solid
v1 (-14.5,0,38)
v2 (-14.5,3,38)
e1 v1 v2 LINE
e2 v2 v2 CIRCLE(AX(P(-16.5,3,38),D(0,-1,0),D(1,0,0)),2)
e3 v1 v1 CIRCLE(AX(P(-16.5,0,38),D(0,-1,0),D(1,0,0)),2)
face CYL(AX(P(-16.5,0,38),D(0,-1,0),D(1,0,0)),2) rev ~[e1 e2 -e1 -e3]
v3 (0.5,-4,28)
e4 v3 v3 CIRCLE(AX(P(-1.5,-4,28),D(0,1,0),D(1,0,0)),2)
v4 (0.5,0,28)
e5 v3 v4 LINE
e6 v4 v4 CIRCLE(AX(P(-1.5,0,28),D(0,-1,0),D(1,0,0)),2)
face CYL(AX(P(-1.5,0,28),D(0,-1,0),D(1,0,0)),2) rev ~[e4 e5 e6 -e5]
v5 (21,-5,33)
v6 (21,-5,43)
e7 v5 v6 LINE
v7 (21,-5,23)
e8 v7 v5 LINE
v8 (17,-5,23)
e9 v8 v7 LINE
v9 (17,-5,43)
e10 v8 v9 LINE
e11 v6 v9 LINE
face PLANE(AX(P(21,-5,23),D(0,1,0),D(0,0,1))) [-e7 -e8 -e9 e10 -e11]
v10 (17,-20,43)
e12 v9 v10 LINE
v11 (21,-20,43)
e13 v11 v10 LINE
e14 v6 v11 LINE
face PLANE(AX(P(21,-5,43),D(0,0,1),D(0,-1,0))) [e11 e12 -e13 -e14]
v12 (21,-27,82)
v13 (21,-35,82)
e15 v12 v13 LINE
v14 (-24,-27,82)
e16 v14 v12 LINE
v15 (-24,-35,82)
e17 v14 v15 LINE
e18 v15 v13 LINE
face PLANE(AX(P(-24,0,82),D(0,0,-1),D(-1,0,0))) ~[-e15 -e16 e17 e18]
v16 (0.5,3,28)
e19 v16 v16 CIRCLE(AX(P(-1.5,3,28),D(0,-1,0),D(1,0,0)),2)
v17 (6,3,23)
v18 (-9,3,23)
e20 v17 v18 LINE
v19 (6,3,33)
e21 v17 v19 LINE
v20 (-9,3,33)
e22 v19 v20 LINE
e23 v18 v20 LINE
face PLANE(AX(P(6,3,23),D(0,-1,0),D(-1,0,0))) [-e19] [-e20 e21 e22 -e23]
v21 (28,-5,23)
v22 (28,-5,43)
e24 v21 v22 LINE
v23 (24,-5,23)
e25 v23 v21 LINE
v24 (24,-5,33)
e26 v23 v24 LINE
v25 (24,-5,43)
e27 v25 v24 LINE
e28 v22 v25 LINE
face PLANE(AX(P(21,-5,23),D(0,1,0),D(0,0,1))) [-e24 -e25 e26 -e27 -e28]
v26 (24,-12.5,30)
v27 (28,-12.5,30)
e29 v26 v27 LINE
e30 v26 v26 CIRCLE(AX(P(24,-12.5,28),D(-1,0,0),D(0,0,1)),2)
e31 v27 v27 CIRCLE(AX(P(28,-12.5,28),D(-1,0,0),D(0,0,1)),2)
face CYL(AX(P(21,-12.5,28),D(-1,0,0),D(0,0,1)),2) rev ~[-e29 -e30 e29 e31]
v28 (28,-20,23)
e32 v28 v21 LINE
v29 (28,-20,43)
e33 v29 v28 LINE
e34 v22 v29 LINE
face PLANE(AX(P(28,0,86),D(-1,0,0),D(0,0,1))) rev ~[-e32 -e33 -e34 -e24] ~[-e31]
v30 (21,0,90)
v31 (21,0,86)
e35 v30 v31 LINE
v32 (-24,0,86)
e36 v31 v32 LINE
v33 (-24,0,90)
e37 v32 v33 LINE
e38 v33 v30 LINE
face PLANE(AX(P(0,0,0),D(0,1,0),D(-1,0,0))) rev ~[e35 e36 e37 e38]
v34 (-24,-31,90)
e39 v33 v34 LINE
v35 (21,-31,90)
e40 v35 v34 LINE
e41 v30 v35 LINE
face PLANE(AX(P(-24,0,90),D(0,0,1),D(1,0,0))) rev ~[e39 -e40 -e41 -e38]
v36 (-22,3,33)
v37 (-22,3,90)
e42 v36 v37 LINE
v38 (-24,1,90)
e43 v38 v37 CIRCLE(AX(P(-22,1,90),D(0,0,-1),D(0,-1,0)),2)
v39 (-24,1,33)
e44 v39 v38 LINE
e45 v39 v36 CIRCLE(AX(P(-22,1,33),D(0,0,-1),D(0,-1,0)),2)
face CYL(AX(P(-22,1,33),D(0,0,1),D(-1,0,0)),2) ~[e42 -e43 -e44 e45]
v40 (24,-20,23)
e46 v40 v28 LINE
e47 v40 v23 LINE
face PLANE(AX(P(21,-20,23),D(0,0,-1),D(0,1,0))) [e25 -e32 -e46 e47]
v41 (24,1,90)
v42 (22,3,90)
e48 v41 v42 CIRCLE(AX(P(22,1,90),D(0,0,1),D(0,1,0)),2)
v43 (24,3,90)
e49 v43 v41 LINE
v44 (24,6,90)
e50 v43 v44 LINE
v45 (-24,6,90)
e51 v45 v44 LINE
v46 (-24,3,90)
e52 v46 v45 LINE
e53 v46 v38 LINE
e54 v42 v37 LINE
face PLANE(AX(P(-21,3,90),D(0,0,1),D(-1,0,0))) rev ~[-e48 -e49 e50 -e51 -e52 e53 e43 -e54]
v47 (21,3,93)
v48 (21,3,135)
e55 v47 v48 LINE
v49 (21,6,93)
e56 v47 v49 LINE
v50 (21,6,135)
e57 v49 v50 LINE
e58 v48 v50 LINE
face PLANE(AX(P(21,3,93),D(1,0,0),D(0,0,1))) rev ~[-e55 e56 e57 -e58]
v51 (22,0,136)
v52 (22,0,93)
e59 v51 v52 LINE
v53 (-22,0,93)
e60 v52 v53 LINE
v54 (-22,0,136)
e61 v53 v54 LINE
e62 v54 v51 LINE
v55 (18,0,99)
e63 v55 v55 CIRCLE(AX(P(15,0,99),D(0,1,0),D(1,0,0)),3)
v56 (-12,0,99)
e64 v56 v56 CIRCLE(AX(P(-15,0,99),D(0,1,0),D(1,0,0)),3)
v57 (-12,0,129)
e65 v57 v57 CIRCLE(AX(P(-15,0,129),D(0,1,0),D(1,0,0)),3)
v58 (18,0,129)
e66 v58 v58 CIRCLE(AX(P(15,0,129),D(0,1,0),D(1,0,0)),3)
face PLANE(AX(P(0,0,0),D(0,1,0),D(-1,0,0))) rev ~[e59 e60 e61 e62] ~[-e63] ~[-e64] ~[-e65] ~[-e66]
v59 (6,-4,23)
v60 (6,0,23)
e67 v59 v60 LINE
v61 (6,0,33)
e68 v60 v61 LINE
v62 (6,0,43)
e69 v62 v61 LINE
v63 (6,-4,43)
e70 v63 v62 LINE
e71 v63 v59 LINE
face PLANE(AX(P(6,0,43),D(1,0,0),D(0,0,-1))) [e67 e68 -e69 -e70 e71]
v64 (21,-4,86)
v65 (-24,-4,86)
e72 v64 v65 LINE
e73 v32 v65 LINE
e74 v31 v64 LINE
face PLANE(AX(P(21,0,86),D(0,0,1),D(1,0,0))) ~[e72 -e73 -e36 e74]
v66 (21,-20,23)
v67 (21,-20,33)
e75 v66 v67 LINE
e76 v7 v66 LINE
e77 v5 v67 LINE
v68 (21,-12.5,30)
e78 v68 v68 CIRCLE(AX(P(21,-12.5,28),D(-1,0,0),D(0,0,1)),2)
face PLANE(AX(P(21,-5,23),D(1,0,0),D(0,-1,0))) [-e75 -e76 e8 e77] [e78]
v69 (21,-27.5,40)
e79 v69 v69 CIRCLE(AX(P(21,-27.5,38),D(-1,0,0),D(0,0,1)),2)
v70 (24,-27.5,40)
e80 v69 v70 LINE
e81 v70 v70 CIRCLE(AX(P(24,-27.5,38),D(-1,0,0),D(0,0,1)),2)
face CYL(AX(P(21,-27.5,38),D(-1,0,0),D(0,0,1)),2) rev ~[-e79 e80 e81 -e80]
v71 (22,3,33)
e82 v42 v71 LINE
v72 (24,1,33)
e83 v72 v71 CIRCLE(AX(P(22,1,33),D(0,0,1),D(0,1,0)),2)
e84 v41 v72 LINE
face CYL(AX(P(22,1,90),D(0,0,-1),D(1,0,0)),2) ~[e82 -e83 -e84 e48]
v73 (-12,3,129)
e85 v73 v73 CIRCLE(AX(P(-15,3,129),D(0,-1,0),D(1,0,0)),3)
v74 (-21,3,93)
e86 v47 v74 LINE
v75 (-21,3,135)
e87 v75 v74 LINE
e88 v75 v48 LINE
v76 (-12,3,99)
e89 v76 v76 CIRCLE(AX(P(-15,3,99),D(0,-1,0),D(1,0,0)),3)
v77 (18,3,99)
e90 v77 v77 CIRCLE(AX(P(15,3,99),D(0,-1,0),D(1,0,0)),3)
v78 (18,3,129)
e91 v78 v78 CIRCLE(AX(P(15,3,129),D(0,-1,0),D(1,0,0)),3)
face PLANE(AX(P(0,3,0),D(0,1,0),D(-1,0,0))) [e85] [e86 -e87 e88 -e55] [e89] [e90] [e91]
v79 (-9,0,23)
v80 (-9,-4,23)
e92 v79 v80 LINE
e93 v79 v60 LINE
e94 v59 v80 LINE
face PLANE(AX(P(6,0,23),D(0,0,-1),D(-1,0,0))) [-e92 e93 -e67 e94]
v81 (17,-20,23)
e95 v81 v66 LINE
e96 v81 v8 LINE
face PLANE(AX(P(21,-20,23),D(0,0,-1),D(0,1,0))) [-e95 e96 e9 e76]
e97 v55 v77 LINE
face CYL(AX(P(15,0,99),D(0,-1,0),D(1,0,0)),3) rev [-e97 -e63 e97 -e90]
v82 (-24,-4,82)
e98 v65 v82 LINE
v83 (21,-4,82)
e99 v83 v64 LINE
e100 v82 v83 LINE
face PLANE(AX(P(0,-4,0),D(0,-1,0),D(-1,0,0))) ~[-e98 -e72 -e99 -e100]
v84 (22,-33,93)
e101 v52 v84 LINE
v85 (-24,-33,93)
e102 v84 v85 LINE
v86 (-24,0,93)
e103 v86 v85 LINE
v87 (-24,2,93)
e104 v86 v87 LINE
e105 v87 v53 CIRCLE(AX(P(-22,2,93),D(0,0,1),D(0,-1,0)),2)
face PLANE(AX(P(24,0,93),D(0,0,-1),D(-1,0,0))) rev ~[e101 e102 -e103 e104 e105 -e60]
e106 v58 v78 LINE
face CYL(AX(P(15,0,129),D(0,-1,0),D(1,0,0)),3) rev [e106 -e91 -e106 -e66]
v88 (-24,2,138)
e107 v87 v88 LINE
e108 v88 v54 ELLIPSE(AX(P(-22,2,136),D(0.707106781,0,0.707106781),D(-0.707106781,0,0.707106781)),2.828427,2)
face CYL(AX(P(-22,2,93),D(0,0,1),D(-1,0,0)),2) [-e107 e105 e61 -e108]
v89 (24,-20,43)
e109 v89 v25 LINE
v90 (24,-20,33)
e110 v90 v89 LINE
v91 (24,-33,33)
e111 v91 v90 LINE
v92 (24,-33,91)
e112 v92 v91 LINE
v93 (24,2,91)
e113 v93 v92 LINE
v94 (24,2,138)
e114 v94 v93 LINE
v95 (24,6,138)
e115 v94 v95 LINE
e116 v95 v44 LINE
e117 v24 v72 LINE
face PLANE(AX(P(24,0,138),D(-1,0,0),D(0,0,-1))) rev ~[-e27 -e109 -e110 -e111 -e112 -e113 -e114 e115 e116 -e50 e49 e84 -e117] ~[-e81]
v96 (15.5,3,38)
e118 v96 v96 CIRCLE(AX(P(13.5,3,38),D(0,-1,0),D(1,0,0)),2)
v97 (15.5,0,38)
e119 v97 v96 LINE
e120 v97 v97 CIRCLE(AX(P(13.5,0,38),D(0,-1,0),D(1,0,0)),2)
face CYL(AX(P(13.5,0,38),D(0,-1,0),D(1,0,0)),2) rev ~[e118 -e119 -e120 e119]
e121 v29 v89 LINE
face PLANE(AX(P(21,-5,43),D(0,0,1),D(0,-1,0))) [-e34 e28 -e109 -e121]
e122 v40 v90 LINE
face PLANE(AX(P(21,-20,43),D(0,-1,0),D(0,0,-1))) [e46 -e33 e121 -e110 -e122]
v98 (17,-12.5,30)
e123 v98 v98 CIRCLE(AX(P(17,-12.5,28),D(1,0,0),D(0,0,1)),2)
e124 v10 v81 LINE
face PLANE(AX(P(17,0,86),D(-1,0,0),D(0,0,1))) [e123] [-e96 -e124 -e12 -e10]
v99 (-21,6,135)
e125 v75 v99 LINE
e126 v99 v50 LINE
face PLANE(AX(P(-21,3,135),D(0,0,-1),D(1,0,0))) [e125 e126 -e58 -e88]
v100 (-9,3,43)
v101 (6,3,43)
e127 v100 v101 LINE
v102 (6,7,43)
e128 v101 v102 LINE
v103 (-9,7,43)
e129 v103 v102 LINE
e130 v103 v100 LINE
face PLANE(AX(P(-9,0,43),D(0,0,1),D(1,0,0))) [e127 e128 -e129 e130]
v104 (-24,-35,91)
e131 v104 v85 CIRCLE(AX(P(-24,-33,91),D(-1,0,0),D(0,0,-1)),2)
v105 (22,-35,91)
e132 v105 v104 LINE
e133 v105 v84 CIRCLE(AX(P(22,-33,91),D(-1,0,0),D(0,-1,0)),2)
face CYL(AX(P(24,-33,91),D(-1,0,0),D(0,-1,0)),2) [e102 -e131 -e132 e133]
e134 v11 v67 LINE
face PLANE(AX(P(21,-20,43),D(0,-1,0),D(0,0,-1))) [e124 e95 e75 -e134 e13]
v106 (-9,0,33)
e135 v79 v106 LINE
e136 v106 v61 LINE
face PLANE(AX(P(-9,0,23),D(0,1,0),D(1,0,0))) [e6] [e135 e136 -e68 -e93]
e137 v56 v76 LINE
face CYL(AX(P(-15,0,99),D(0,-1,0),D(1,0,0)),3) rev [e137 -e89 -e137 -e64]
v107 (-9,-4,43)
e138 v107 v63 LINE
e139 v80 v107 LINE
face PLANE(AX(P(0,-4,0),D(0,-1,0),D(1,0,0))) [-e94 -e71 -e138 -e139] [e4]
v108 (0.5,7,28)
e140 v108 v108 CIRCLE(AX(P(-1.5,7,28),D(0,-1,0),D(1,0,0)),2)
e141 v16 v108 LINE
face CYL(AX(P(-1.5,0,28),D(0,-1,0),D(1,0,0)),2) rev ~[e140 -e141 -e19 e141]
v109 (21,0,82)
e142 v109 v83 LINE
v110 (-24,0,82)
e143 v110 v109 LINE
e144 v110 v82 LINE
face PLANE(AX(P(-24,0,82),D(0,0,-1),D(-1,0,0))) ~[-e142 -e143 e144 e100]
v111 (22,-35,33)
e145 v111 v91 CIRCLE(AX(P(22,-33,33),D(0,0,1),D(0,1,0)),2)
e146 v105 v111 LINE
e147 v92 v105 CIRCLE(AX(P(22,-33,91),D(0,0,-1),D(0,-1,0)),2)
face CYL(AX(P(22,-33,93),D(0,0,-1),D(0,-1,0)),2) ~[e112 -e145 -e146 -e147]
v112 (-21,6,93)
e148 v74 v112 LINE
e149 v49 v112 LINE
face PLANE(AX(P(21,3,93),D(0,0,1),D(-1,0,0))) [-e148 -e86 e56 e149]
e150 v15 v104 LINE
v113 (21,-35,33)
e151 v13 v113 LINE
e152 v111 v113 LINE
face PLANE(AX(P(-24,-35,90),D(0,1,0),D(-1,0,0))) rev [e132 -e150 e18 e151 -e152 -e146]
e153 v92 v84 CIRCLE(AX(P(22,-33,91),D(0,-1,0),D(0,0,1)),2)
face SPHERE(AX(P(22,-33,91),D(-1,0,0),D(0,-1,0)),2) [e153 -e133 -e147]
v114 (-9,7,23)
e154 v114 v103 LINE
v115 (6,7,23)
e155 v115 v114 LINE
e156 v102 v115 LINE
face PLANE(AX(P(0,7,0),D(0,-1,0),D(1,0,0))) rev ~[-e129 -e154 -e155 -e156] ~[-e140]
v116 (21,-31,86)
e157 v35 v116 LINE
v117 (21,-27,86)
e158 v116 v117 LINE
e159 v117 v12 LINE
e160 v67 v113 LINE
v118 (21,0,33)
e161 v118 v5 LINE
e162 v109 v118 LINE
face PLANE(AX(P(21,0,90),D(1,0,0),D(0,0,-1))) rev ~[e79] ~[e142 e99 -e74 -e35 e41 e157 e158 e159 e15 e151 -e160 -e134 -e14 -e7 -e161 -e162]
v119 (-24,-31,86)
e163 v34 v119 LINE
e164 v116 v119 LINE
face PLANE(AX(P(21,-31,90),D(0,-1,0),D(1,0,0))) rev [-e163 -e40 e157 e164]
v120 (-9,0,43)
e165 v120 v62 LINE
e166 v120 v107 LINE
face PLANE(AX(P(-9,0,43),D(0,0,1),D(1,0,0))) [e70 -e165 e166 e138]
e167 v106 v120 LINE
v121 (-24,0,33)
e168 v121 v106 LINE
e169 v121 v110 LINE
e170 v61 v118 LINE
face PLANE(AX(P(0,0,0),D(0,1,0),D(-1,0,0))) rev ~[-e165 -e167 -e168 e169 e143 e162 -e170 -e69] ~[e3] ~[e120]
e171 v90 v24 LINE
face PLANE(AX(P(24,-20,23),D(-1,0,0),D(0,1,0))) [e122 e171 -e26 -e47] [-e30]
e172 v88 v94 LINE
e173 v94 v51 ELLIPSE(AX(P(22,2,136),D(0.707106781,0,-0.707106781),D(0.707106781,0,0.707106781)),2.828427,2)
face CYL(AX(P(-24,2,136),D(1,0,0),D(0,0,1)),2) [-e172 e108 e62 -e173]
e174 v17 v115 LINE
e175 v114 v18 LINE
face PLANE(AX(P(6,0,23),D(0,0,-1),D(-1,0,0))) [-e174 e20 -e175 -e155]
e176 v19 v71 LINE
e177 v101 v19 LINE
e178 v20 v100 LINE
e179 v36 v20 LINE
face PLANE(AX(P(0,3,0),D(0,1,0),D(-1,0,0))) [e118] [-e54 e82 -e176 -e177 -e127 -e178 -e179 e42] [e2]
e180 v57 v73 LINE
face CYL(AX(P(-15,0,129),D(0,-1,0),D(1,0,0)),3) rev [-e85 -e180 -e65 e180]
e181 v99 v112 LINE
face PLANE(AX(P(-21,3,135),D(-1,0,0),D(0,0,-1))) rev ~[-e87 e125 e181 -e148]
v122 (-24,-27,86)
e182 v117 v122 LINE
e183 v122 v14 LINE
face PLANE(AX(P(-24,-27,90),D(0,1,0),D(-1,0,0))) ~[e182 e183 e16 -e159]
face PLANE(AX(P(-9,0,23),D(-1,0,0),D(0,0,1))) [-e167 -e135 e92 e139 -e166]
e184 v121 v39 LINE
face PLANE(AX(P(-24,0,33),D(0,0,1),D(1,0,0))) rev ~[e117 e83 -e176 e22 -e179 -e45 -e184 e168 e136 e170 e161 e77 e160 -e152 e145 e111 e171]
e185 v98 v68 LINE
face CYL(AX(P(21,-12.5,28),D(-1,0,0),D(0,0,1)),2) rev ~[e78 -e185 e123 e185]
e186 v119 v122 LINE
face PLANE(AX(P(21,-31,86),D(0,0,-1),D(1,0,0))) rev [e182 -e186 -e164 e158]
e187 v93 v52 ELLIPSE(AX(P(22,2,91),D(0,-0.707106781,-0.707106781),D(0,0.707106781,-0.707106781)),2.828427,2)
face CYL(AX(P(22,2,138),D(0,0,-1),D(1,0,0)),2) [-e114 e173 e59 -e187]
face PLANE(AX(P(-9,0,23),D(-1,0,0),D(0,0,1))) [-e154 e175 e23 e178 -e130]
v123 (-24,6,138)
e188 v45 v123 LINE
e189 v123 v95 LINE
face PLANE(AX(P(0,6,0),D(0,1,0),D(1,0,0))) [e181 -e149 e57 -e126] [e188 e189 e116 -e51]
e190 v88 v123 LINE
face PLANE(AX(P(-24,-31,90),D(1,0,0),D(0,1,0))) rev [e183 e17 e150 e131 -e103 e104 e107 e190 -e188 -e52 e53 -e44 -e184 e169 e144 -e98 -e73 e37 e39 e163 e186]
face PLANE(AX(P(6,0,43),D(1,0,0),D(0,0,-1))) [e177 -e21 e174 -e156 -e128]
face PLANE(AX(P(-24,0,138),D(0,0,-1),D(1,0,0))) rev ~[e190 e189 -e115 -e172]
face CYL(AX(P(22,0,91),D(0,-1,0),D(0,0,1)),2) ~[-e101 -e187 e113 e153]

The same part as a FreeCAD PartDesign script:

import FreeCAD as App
import Part
import Sketcher

V = App.Vector


def edges_at(feature, points):
    """Names of the edges that pass closest to the given points."""
    edges = feature.Shape.Edges
    near = lambda p: min(range(len(edges)), key=lambda i: edges[i].distToShape(Part.Vertex(*p))[0])
    return sorted({f"Edge{near(p) + 1}" for p in points})

doc = App.newDocument("Part")
body = doc.addObject("PartDesign::Body", "Body")

# Sketch on XZ plane
sketch1 = body.newObject("Sketcher::SketchObject", "Sketch")
sketch1.AttachmentSupport = (doc.getObject("XZ_Plane"), [""])
sketch1.MapMode = "FlatFace"
sketch1.addGeometry(Part.LineSegment(V(-24, -138, 0), V(-24, 138, 0)), False)
sketch1.addGeometry(Part.LineSegment(V(-24, 138, 0), V(24, 138, 0)), False)
sketch1.addGeometry(Part.LineSegment(V(24, 138, 0), V(24, -138, 0)), False)
sketch1.addGeometry(Part.LineSegment(V(24, -138, 0), V(-24, -138, 0)), False)
sketch1.addConstraint(Sketcher.Constraint("Coincident", 0, 2, 1, 1))
sketch1.addConstraint(Sketcher.Constraint("Coincident", 1, 2, 2, 1))
sketch1.addConstraint(Sketcher.Constraint("Coincident", 2, 2, 3, 1))
sketch1.addConstraint(Sketcher.Constraint("Coincident", 3, 2, 0, 1))
sketch1.addConstraint(Sketcher.Constraint("Vertical", 0))
sketch1.addConstraint(Sketcher.Constraint("Horizontal", 1))
sketch1.addConstraint(Sketcher.Constraint("Vertical", 2))
sketch1.addConstraint(Sketcher.Constraint("Horizontal", 3))
sketch1.addConstraint(Sketcher.Constraint("Symmetric", 0, 2, 2, 2, -1, 1))
sketch1.addConstraint(Sketcher.Constraint("DistanceX", 1, 1, 1, 2, 48.0))
sketch1.addConstraint(Sketcher.Constraint("DistanceY", 0, 1, 0, 2, 276.0))
pad1 = body.newObject("PartDesign::Pad", "Pad")
pad1.Profile = sketch1
pad1.Length = 3
pad1.Reversed = True

# Sketch on XZ plane
sketch2 = body.newObject("Sketcher::SketchObject", "Sketch001")
sketch2.AttachmentSupport = (doc.getObject("XZ_Plane"), [""])
sketch2.MapMode = "FlatFace"
sketch2.AttachmentOffset = App.Placement(V(0, 0, -3), App.Rotation())
sketch2.addGeometry(Part.LineSegment(V(-24, 90, 0), V(-24, 138, 0)), False)
sketch2.addGeometry(Part.LineSegment(V(-24, 138, 0), V(24, 138, 0)), False)
sketch2.addGeometry(Part.LineSegment(V(24, 138, 0), V(24, 90, 0)), False)
sketch2.addGeometry(Part.LineSegment(V(24, 90, 0), V(-24, 90, 0)), False)
sketch2.addGeometry(Part.LineSegment(V(-21, 135, 0), V(-21, 93, 0)), False)
sketch2.addGeometry(Part.LineSegment(V(-21, 93, 0), V(21, 93, 0)), False)
sketch2.addGeometry(Part.LineSegment(V(21, 93, 0), V(21, 135, 0)), False)
sketch2.addGeometry(Part.LineSegment(V(21, 135, 0), V(-21, 135, 0)), False)
sketch2.addConstraint(Sketcher.Constraint("Coincident", 0, 2, 1, 1))
sketch2.addConstraint(Sketcher.Constraint("Coincident", 1, 2, 2, 1))
sketch2.addConstraint(Sketcher.Constraint("Coincident", 2, 2, 3, 1))
sketch2.addConstraint(Sketcher.Constraint("Coincident", 3, 2, 0, 1))
sketch2.addConstraint(Sketcher.Constraint("Coincident", 4, 2, 5, 1))
sketch2.addConstraint(Sketcher.Constraint("Coincident", 5, 2, 6, 1))
sketch2.addConstraint(Sketcher.Constraint("Coincident", 6, 2, 7, 1))
sketch2.addConstraint(Sketcher.Constraint("Coincident", 7, 2, 4, 1))
sketch2.addConstraint(Sketcher.Constraint("Vertical", 0))
sketch2.addConstraint(Sketcher.Constraint("Horizontal", 1))
sketch2.addConstraint(Sketcher.Constraint("Vertical", 2))
sketch2.addConstraint(Sketcher.Constraint("Horizontal", 3))
sketch2.addConstraint(Sketcher.Constraint("Vertical", 4))
sketch2.addConstraint(Sketcher.Constraint("Horizontal", 5))
sketch2.addConstraint(Sketcher.Constraint("Vertical", 6))
sketch2.addConstraint(Sketcher.Constraint("Horizontal", 7))
sketch2.addConstraint(Sketcher.Constraint("Equal", 3, 0))
sketch2.addConstraint(Sketcher.Constraint("Equal", 7, 4))
sketch2.addConstraint(Sketcher.Constraint("DistanceX", 1, 1, 1, 2, 48.0))
sketch2.addConstraint(Sketcher.Constraint("DistanceX", 3, 2, 4, 2, 3.0))
sketch2.addConstraint(Sketcher.Constraint("DistanceY", 3, 2, 4, 2, 3.0))
sketch2.addConstraint(Sketcher.Constraint("DistanceX", 5, 2, 2, 2, 3.0))
sketch2.addConstraint(Sketcher.Constraint("DistanceX", 0, 2, -1, 1, 24.0))
sketch2.addConstraint(Sketcher.Constraint("DistanceY", -1, 1, 0, 2, 138.0))
pad2 = body.newObject("PartDesign::Pad", "Pad001")
pad2.Profile = sketch2
pad2.Length = 3
pad2.Reversed = True
doc.recompute()

mirrored = body.newObject("PartDesign::Mirrored", "Mirrored")
mirrored.Originals = [pad2]
mirrored.MirrorPlane = (doc.getObject("XY_Plane"), [""])
body.Tip = mirrored

# Sketch on XZ plane
sketch3 = body.newObject("Sketcher::SketchObject", "Sketch002")
sketch3.AttachmentSupport = (doc.getObject("XZ_Plane"), [""])
sketch3.MapMode = "FlatFace"
sketch3.addGeometry(Part.LineSegment(V(24, -93, 0), V(24, 93, 0)), False)
sketch3.addGeometry(Part.LineSegment(V(24, 93, 0), V(-24, 93, 0)), False)
sketch3.addGeometry(Part.LineSegment(V(-24, 93, 0), V(-24, 90, 0)), False)
sketch3.addGeometry(Part.LineSegment(V(-24, 90, 0), V(21, 90, 0)), False)
sketch3.addGeometry(Part.LineSegment(V(21, 90, 0), V(21, -90, 0)), False)
sketch3.addGeometry(Part.LineSegment(V(21, -90, 0), V(-24, -90, 0)), False)
sketch3.addGeometry(Part.LineSegment(V(-24, -90, 0), V(-24, -93, 0)), False)
sketch3.addGeometry(Part.LineSegment(V(-24, -93, 0), V(24, -93, 0)), False)
sketch3.addConstraint(Sketcher.Constraint("Coincident", 0, 2, 1, 1))
sketch3.addConstraint(Sketcher.Constraint("Coincident", 1, 2, 2, 1))
sketch3.addConstraint(Sketcher.Constraint("Coincident", 2, 2, 3, 1))
sketch3.addConstraint(Sketcher.Constraint("Coincident", 3, 2, 4, 1))
sketch3.addConstraint(Sketcher.Constraint("Coincident", 4, 2, 5, 1))
sketch3.addConstraint(Sketcher.Constraint("Coincident", 5, 2, 6, 1))
sketch3.addConstraint(Sketcher.Constraint("Coincident", 6, 2, 7, 1))
sketch3.addConstraint(Sketcher.Constraint("Coincident", 7, 2, 0, 1))
sketch3.addConstraint(Sketcher.Constraint("Vertical", 0))
sketch3.addConstraint(Sketcher.Constraint("Horizontal", 1))
sketch3.addConstraint(Sketcher.Constraint("Vertical", 2))
sketch3.addConstraint(Sketcher.Constraint("Horizontal", 3))
sketch3.addConstraint(Sketcher.Constraint("Vertical", 4))
sketch3.addConstraint(Sketcher.Constraint("Horizontal", 5))
sketch3.addConstraint(Sketcher.Constraint("Vertical", 6))
sketch3.addConstraint(Sketcher.Constraint("Horizontal", 7))
sketch3.addConstraint(Sketcher.Constraint("Symmetric", 0, 2, 6, 2, -1, 1))
sketch3.addConstraint(Sketcher.Constraint("Symmetric", 2, 2, 5, 2, -1))
sketch3.addConstraint(Sketcher.Constraint("DistanceY", 2, 2, 2, 1, 3.0))
sketch3.addConstraint(Sketcher.Constraint("DistanceX", 3, 2, 0, 2, 3.0))
sketch3.addConstraint(Sketcher.Constraint("DistanceX", 1, 2, 1, 1, 48.0))
sketch3.addConstraint(Sketcher.Constraint("DistanceY", 0, 1, 0, 2, 186.0))
pad3 = body.newObject("PartDesign::Pad", "Pad002")
pad3.Profile = sketch3
pad3.Length = 35

# Sketch on XY plane
sketch4 = body.newObject("Sketcher::SketchObject", "Sketch003")
sketch4.AttachmentSupport = (doc.getObject("XY_Plane"), [""])
sketch4.MapMode = "FlatFace"
sketch4.AttachmentOffset = App.Placement(V(0, 0, -90), App.Rotation())
sketch4.addGeometry(Part.LineSegment(V(-24, -31, 0), V(-24, -35, 0)), False)
sketch4.addGeometry(Part.LineSegment(V(-24, -35, 0), V(21, -35, 0)), False)
sketch4.addGeometry(Part.LineSegment(V(21, -35, 0), V(21, -31, 0)), False)
sketch4.addGeometry(Part.LineSegment(V(21, -31, 0), V(-24, -31, 0)), False)
sketch4.addConstraint(Sketcher.Constraint("Coincident", 0, 2, 1, 1))
sketch4.addConstraint(Sketcher.Constraint("Coincident", 1, 2, 2, 1))
sketch4.addConstraint(Sketcher.Constraint("Coincident", 2, 2, 3, 1))
sketch4.addConstraint(Sketcher.Constraint("Coincident", 3, 2, 0, 1))
sketch4.addConstraint(Sketcher.Constraint("Vertical", 0))
sketch4.addConstraint(Sketcher.Constraint("Horizontal", 1))
sketch4.addConstraint(Sketcher.Constraint("Vertical", 2))
sketch4.addConstraint(Sketcher.Constraint("Horizontal", 3))
sketch4.addConstraint(Sketcher.Constraint("DistanceY", 0, 2, 0, 1, 4.0))
sketch4.addConstraint(Sketcher.Constraint("DistanceX", 1, 1, 1, 2, 45.0))
sketch4.addConstraint(Sketcher.Constraint("DistanceX", 0, 2, -1, 1, 24.0))
sketch4.addConstraint(Sketcher.Constraint("DistanceY", 0, 2, -1, 1, 35.0))
pad4 = body.newObject("PartDesign::Pad", "Pad003")
pad4.Profile = sketch4
pad4.Length = 8

# Sketch on XZ plane
sketch5 = body.newObject("Sketcher::SketchObject", "Sketch004")
sketch5.AttachmentSupport = (doc.getObject("XZ_Plane"), [""])
sketch5.MapMode = "FlatFace"
sketch5.AttachmentOffset = App.Placement(V(0, 0, 31), App.Rotation())
sketch5.addGeometry(Part.LineSegment(V(-24, -86, 0), V(-24, -82, 0)), False)
sketch5.addGeometry(Part.LineSegment(V(-24, -82, 0), V(21, -82, 0)), False)
sketch5.addGeometry(Part.LineSegment(V(21, -82, 0), V(21, -86, 0)), False)
sketch5.addGeometry(Part.LineSegment(V(21, -86, 0), V(-24, -86, 0)), False)
sketch5.addConstraint(Sketcher.Constraint("Coincident", 0, 2, 1, 1))
sketch5.addConstraint(Sketcher.Constraint("Coincident", 1, 2, 2, 1))
sketch5.addConstraint(Sketcher.Constraint("Coincident", 2, 2, 3, 1))
sketch5.addConstraint(Sketcher.Constraint("Coincident", 3, 2, 0, 1))
sketch5.addConstraint(Sketcher.Constraint("Vertical", 0))
sketch5.addConstraint(Sketcher.Constraint("Horizontal", 1))
sketch5.addConstraint(Sketcher.Constraint("Vertical", 2))
sketch5.addConstraint(Sketcher.Constraint("Horizontal", 3))
sketch5.addConstraint(Sketcher.Constraint("DistanceY", 0, 1, 0, 2, 4.0))
sketch5.addConstraint(Sketcher.Constraint("DistanceX", 1, 1, 1, 2, 45.0))
sketch5.addConstraint(Sketcher.Constraint("DistanceX", 0, 2, -1, 1, 24.0))
sketch5.addConstraint(Sketcher.Constraint("DistanceY", 0, 2, -1, 1, 82.0))
pad5 = body.newObject("PartDesign::Pad", "Pad004")
pad5.Profile = sketch5
pad5.Length = 4
pad5.Reversed = True

# Sketch on XZ plane
sketch6 = body.newObject("Sketcher::SketchObject", "Sketch005")
sketch6.AttachmentSupport = (doc.getObject("XZ_Plane"), [""])
sketch6.MapMode = "FlatFace"
sketch6.addGeometry(Part.LineSegment(V(-24, -86, 0), V(21, -86, 0)), False)
sketch6.addGeometry(Part.LineSegment(V(21, -86, 0), V(21, -82, 0)), False)
sketch6.addGeometry(Part.LineSegment(V(21, -82, 0), V(-24, -82, 0)), False)
sketch6.addGeometry(Part.LineSegment(V(-24, -82, 0), V(-24, -86, 0)), False)
sketch6.addConstraint(Sketcher.Constraint("Coincident", 0, 2, 1, 1))
sketch6.addConstraint(Sketcher.Constraint("Coincident", 1, 2, 2, 1))
sketch6.addConstraint(Sketcher.Constraint("Coincident", 2, 2, 3, 1))
sketch6.addConstraint(Sketcher.Constraint("Coincident", 3, 2, 0, 1))
sketch6.addConstraint(Sketcher.Constraint("Horizontal", 0))
sketch6.addConstraint(Sketcher.Constraint("Vertical", 1))
sketch6.addConstraint(Sketcher.Constraint("Horizontal", 2))
sketch6.addConstraint(Sketcher.Constraint("Vertical", 3))
sketch6.addConstraint(Sketcher.Constraint("DistanceY", 1, 1, 1, 2, 4.0))
sketch6.addConstraint(Sketcher.Constraint("DistanceX", 0, 1, 0, 2, 45.0))
sketch6.addConstraint(Sketcher.Constraint("DistanceX", -1, 1, 0, 2, 21.0))
sketch6.addConstraint(Sketcher.Constraint("DistanceY", 0, 2, -1, 1, 86.0))
pad6 = body.newObject("PartDesign::Pad", "Pad005")
pad6.Profile = sketch6
pad6.Length = 4
doc.recompute()

mirrored2 = body.newObject("PartDesign::Mirrored", "Mirrored001")
mirrored2.Originals = [pad6, pad5, pad4]
mirrored2.MirrorPlane = (doc.getObject("XY_Plane"), [""])
body.Tip = mirrored2

# Sketch on XZ plane
sketch7 = body.newObject("Sketcher::SketchObject", "Sketch006")
sketch7.AttachmentSupport = (doc.getObject("XZ_Plane"), [""])
sketch7.MapMode = "FlatFace"
sketch7.addGeometry(Part.Circle(V(-15, -129, 0), V(0, 0, 1), 3), False)
sketch7.addGeometry(Part.Circle(V(15, -129, 0), V(0, 0, 1), 3), False)
sketch7.addGeometry(Part.Circle(V(15, -99, 0), V(0, 0, 1), 3), False)
sketch7.addGeometry(Part.Circle(V(-15, -99, 0), V(0, 0, 1), 3), False)
sketch7.addConstraint(Sketcher.Constraint("Equal", 0, 1))
sketch7.addConstraint(Sketcher.Constraint("Equal", 1, 2))
sketch7.addConstraint(Sketcher.Constraint("Equal", 2, 3))
sketch7.addConstraint(Sketcher.Constraint("Symmetric", 0, 3, 1, 3, -2))
sketch7.addConstraint(Sketcher.Constraint("Symmetric", 2, 3, 3, 3, -2))
sketch7.addConstraint(Sketcher.Constraint("Vertical", 1, 3, 2, 3))
sketch7.addConstraint(Sketcher.Constraint("Diameter", 0, 6.0))
sketch7.addConstraint(Sketcher.Constraint("DistanceX", 0, 3, -1, 1, 15.0))
sketch7.addConstraint(Sketcher.Constraint("DistanceY", 0, 3, -1, 1, 129.0))
sketch7.addConstraint(Sketcher.Constraint("DistanceY", 2, 3, -1, 1, 99.0))
pocket1 = body.newObject("PartDesign::Pocket", "Pocket")
pocket1.Profile = sketch7
pocket1.Length = 4
doc.recompute()

mirrored3 = body.newObject("PartDesign::Mirrored", "Mirrored002")
mirrored3.Originals = [pocket1]
mirrored3.MirrorPlane = (doc.getObject("XY_Plane"), [""])
body.Tip = mirrored3

# Sketch on XZ plane
sketch8 = body.newObject("Sketcher::SketchObject", "Sketch007")
sketch8.AttachmentSupport = (doc.getObject("XZ_Plane"), [""])
sketch8.MapMode = "FlatFace"
sketch8.addGeometry(Part.LineSegment(V(21, -20, 0), V(21, -17, 0)), False)
sketch8.addGeometry(Part.LineSegment(V(21, -17, 0), V(-24, -17, 0)), False)
sketch8.addGeometry(Part.LineSegment(V(-24, -17, 0), V(-24, -20, 0)), False)
sketch8.addGeometry(Part.LineSegment(V(-24, -20, 0), V(21, -20, 0)), False)
sketch8.addConstraint(Sketcher.Constraint("Coincident", 0, 2, 1, 1))
sketch8.addConstraint(Sketcher.Constraint("Coincident", 1, 2, 2, 1))
sketch8.addConstraint(Sketcher.Constraint("Coincident", 2, 2, 3, 1))
sketch8.addConstraint(Sketcher.Constraint("Coincident", 3, 2, 0, 1))
sketch8.addConstraint(Sketcher.Constraint("Vertical", 0))
sketch8.addConstraint(Sketcher.Constraint("Horizontal", 1))
sketch8.addConstraint(Sketcher.Constraint("Vertical", 2))
sketch8.addConstraint(Sketcher.Constraint("Horizontal", 3))
sketch8.addConstraint(Sketcher.Constraint("DistanceY", 0, 1, 0, 2, 3.0))
sketch8.addConstraint(Sketcher.Constraint("DistanceX", 1, 2, 1, 1, 45.0))
sketch8.addConstraint(Sketcher.Constraint("DistanceX", -1, 1, 0, 2, 21.0))
sketch8.addConstraint(Sketcher.Constraint("DistanceY", 0, 2, -1, 1, 17.0))
pad7 = body.newObject("PartDesign::Pad", "Pad006")
pad7.Profile = sketch8
pad7.Length = 42.3

# Sketch on XY plane
sketch9 = body.newObject("Sketcher::SketchObject", "Sketch008")
sketch9.AttachmentSupport = (doc.getObject("XY_Plane"), [""])
sketch9.MapMode = "FlatFace"
sketch9.AttachmentOffset = App.Placement(V(0, 0, -20), App.Rotation())
sketch9.addGeometry(Part.Circle(V(-18.4, -5.7, 0), V(0, 0, 1), 4), False)
sketch9.addGeometry(Part.Circle(V(-18.4, -36.6, 0), V(0, 0, 1), 4), False)
sketch9.addGeometry(Part.Circle(V(12.7, -5.7, 0), V(0, 0, 1), 4), False)
sketch9.addGeometry(Part.Circle(V(12.7, -36.6, 0), V(0, 0, 1), 4), False)
sketch9.addConstraint(Sketcher.Constraint("Equal", 0, 1))
sketch9.addConstraint(Sketcher.Constraint("Equal", 1, 2))
sketch9.addConstraint(Sketcher.Constraint("Equal", 2, 3))
sketch9.addConstraint(Sketcher.Constraint("Horizontal", 0, 3, 2, 3))
sketch9.addConstraint(Sketcher.Constraint("Horizontal", 1, 3, 3, 3))
sketch9.addConstraint(Sketcher.Constraint("Vertical", 0, 3, 1, 3))
sketch9.addConstraint(Sketcher.Constraint("Vertical", 2, 3, 3, 3))
sketch9.addConstraint(Sketcher.Constraint("Diameter", 0, 8.0))
sketch9.addConstraint(Sketcher.Constraint("DistanceY", 1, 3, 0, 3, 31.0))
sketch9.addConstraint(Sketcher.Constraint("DistanceX", 0, 3, 2, 3, 31.0))
sketch9.addConstraint(Sketcher.Constraint("DistanceX", 0, 3, -1, 1, 18.35))
sketch9.addConstraint(Sketcher.Constraint("DistanceY", 0, 3, -1, 1, 5.65))
pad8 = body.newObject("PartDesign::Pad", "Pad007")
pad8.Profile = sketch9
pad8.Length = 3
pad8.Reversed = True

# Sketch on XY plane
sketch10 = body.newObject("Sketcher::SketchObject", "Sketch009")
sketch10.AttachmentSupport = (doc.getObject("XY_Plane"), [""])
sketch10.MapMode = "FlatFace"
sketch10.AttachmentOffset = App.Placement(V(0, 0, -23), App.Rotation())
sketch10.addGeometry(Part.Circle(V(-18.4, -36.6, 0), V(0, 0, 1), 3), False)
sketch10.addGeometry(Part.Circle(V(-18.4, -5.7, 0), V(0, 0, 1), 3), False)
sketch10.addGeometry(Part.Circle(V(12.7, -36.6, 0), V(0, 0, 1), 3), False)
sketch10.addGeometry(Part.Circle(V(12.7, -5.7, 0), V(0, 0, 1), 3), False)
sketch10.addConstraint(Sketcher.Constraint("Equal", 0, 1))
sketch10.addConstraint(Sketcher.Constraint("Equal", 1, 2))
sketch10.addConstraint(Sketcher.Constraint("Equal", 2, 3))
sketch10.addConstraint(Sketcher.Constraint("Horizontal", 0, 3, 2, 3))
sketch10.addConstraint(Sketcher.Constraint("Horizontal", 1, 3, 3, 3))
sketch10.addConstraint(Sketcher.Constraint("Vertical", 0, 3, 1, 3))
sketch10.addConstraint(Sketcher.Constraint("Vertical", 2, 3, 3, 3))
sketch10.addConstraint(Sketcher.Constraint("Diameter", 0, 6.0))
sketch10.addConstraint(Sketcher.Constraint("DistanceY", 0, 3, 1, 3, 31.0))
sketch10.addConstraint(Sketcher.Constraint("DistanceX", 0, 3, 2, 3, 31.0))
sketch10.addConstraint(Sketcher.Constraint("DistanceX", 0, 3, -1, 1, 18.35))
sketch10.addConstraint(Sketcher.Constraint("DistanceY", 0, 3, -1, 1, 36.65))
pocket2 = body.newObject("PartDesign::Pocket", "Pocket001")
pocket2.Profile = sketch10
pocket2.Length = 2
pocket2.Reversed = True

# Sketch on XY plane
sketch11 = body.newObject("Sketcher::SketchObject", "Sketch010")
sketch11.AttachmentSupport = (doc.getObject("XY_Plane"), [""])
sketch11.MapMode = "FlatFace"
sketch11.AttachmentOffset = App.Placement(V(0, 0, -20), App.Rotation())
sketch11.addGeometry(Part.Circle(V(-2.9, -21.1, 0), V(0, 0, 1), 12.5), False)
sketch11.addGeometry(Part.Circle(V(-18.4, -36.6, 0), V(0, 0, 1), 2), False)
sketch11.addGeometry(Part.Circle(V(12.7, -36.6, 0), V(0, 0, 1), 2), False)
sketch11.addGeometry(Part.Circle(V(12.7, -5.7, 0), V(0, 0, 1), 2), False)
sketch11.addGeometry(Part.Circle(V(-18.4, -5.7, 0), V(0, 0, 1), 2), False)
sketch11.addConstraint(Sketcher.Constraint("Equal", 1, 2))
sketch11.addConstraint(Sketcher.Constraint("Equal", 2, 3))
sketch11.addConstraint(Sketcher.Constraint("Equal", 3, 4))
sketch11.addConstraint(Sketcher.Constraint("Horizontal", 1, 3, 2, 3))
sketch11.addConstraint(Sketcher.Constraint("Horizontal", 3, 3, 4, 3))
sketch11.addConstraint(Sketcher.Constraint("Vertical", 2, 3, 3, 3))
sketch11.addConstraint(Sketcher.Constraint("Vertical", 1, 3, 4, 3))
sketch11.addConstraint(Sketcher.Constraint("Diameter", 0, 25.0))
sketch11.addConstraint(Sketcher.Constraint("Diameter", 1, 4.0))
sketch11.addConstraint(Sketcher.Constraint("DistanceX", 1, 3, 2, 3, 31.0))
sketch11.addConstraint(Sketcher.Constraint("DistanceY", 2, 3, 3, 3, 31.0))
sketch11.addConstraint(Sketcher.Constraint("DistanceX", 1, 3, 0, 3, 15.5))
sketch11.addConstraint(Sketcher.Constraint("DistanceY", 1, 3, 0, 3, 15.5))
sketch11.addConstraint(Sketcher.Constraint("DistanceX", 0, 3, -1, 1, 2.85))
sketch11.addConstraint(Sketcher.Constraint("DistanceY", 0, 3, -1, 1, 21.15))
pocket3 = body.newObject("PartDesign::Pocket", "Pocket002")
pocket3.Profile = sketch11
pocket3.Length = 10
pocket3.Midplane = True

# Sketch on XZ plane
sketch12 = body.newObject("Sketcher::SketchObject", "Sketch011")
sketch12.AttachmentSupport = (doc.getObject("XZ_Plane"), [""])
sketch12.MapMode = "FlatFace"
sketch12.addGeometry(Part.LineSegment(V(-24, 33, 0), V(-24, -138, 0)), False)
sketch12.addGeometry(Part.LineSegment(V(-24, -138, 0), V(24, -138, 0)), False)
sketch12.addGeometry(Part.LineSegment(V(24, -138, 0), V(24, 33, 0)), False)
sketch12.addGeometry(Part.LineSegment(V(24, 33, 0), V(-24, 33, 0)), False)
sketch12.addConstraint(Sketcher.Constraint("Coincident", 0, 2, 1, 1))
sketch12.addConstraint(Sketcher.Constraint("Coincident", 1, 2, 2, 1))
sketch12.addConstraint(Sketcher.Constraint("Coincident", 2, 2, 3, 1))
sketch12.addConstraint(Sketcher.Constraint("Coincident", 3, 2, 0, 1))
sketch12.addConstraint(Sketcher.Constraint("Vertical", 0))
sketch12.addConstraint(Sketcher.Constraint("Horizontal", 1))
sketch12.addConstraint(Sketcher.Constraint("Vertical", 2))
sketch12.addConstraint(Sketcher.Constraint("Horizontal", 3))
sketch12.addConstraint(Sketcher.Constraint("DistanceX", 1, 1, 1, 2, 48.0))
sketch12.addConstraint(Sketcher.Constraint("DistanceY", 0, 2, 0, 1, 171.0))
sketch12.addConstraint(Sketcher.Constraint("DistanceX", 0, 2, -1, 1, 24.0))
sketch12.addConstraint(Sketcher.Constraint("DistanceY", 0, 2, -1, 1, 138.0))
pocket4 = body.newObject("PartDesign::Pocket", "Pocket003")
pocket4.Profile = sketch12
pocket4.Length = 100
pocket4.Midplane = True

# Sketch on XZ plane
sketch13 = body.newObject("Sketcher::SketchObject", "Sketch012")
sketch13.AttachmentSupport = (doc.getObject("XZ_Plane"), [""])
sketch13.MapMode = "FlatFace"
sketch13.addGeometry(Part.LineSegment(V(6, 43, 0), V(-9, 43, 0)), False)
sketch13.addGeometry(Part.LineSegment(V(-9, 43, 0), V(-9, 23, 0)), False)
sketch13.addGeometry(Part.LineSegment(V(-9, 23, 0), V(6, 23, 0)), False)
sketch13.addGeometry(Part.LineSegment(V(6, 23, 0), V(6, 43, 0)), False)
sketch13.addConstraint(Sketcher.Constraint("Coincident", 0, 2, 1, 1))
sketch13.addConstraint(Sketcher.Constraint("Coincident", 1, 2, 2, 1))
sketch13.addConstraint(Sketcher.Constraint("Coincident", 2, 2, 3, 1))
sketch13.addConstraint(Sketcher.Constraint("Coincident", 3, 2, 0, 1))
sketch13.addConstraint(Sketcher.Constraint("Horizontal", 0))
sketch13.addConstraint(Sketcher.Constraint("Vertical", 1))
sketch13.addConstraint(Sketcher.Constraint("Horizontal", 2))
sketch13.addConstraint(Sketcher.Constraint("Vertical", 3))
sketch13.addConstraint(Sketcher.Constraint("DistanceX", 0, 2, 0, 1, 15.0))
sketch13.addConstraint(Sketcher.Constraint("DistanceY", 1, 2, 1, 1, 20.0))
sketch13.addConstraint(Sketcher.Constraint("DistanceX", 0, 2, -1, 1, 9.0))
sketch13.addConstraint(Sketcher.Constraint("DistanceY", -1, 1, 0, 2, 43.0))
pad9 = body.newObject("PartDesign::Pad", "Pad008")
pad9.Profile = sketch13
pad9.Type = "TwoLengths"
pad9.Length = 4
pad9.Length2 = 7

# Sketch on YZ plane
sketch14 = body.newObject("Sketcher::SketchObject", "Sketch013")
sketch14.AttachmentSupport = (doc.getObject("YZ_Plane"), [""])
sketch14.MapMode = "FlatFace"
sketch14.AttachmentOffset = App.Placement(V(0, 0, 21), App.Rotation())
sketch14.addGeometry(Part.LineSegment(V(-20, 23, 0), V(-20, 43, 0)), False)
sketch14.addGeometry(Part.LineSegment(V(-20, 43, 0), V(-5, 43, 0)), False)
sketch14.addGeometry(Part.LineSegment(V(-5, 43, 0), V(-5, 23, 0)), False)
sketch14.addGeometry(Part.LineSegment(V(-5, 23, 0), V(-20, 23, 0)), False)
sketch14.addConstraint(Sketcher.Constraint("Coincident", 0, 2, 1, 1))
sketch14.addConstraint(Sketcher.Constraint("Coincident", 1, 2, 2, 1))
sketch14.addConstraint(Sketcher.Constraint("Coincident", 2, 2, 3, 1))
sketch14.addConstraint(Sketcher.Constraint("Coincident", 3, 2, 0, 1))
sketch14.addConstraint(Sketcher.Constraint("Vertical", 0))
sketch14.addConstraint(Sketcher.Constraint("Horizontal", 1))
sketch14.addConstraint(Sketcher.Constraint("Vertical", 2))
sketch14.addConstraint(Sketcher.Constraint("Horizontal", 3))
sketch14.addConstraint(Sketcher.Constraint("DistanceX", 1, 1, 1, 2, 15.0))
sketch14.addConstraint(Sketcher.Constraint("DistanceY", 0, 1, 0, 2, 20.0))
sketch14.addConstraint(Sketcher.Constraint("DistanceX", 0, 2, -1, 1, 20.0))
sketch14.addConstraint(Sketcher.Constraint("DistanceY", -1, 1, 0, 2, 43.0))
pad10 = body.newObject("PartDesign::Pad", "Pad009")
pad10.Profile = sketch14
pad10.Type = "TwoLengths"
pad10.Length = 4
pad10.Length2 = 7
pad10.Reversed = True

# Sketch on YZ plane
sketch15 = body.newObject("Sketcher::SketchObject", "Sketch014")
sketch15.AttachmentSupport = (doc.getObject("YZ_Plane"), [""])
sketch15.MapMode = "FlatFace"
sketch15.AttachmentOffset = App.Placement(V(0, 0, 21), App.Rotation())
sketch15.addGeometry(Part.Circle(V(-12.5, 28, 0), V(0, 0, 1), 2), False)
sketch15.addGeometry(Part.Circle(V(-27.5, 38, 0), V(0, 0, 1), 2), False)
sketch15.addConstraint(Sketcher.Constraint("Equal", 0, 1))
sketch15.addConstraint(Sketcher.Constraint("Diameter", 0, 4.0))
sketch15.addConstraint(Sketcher.Constraint("DistanceY", -1, 1, 0, 3, 28.0))
sketch15.addConstraint(Sketcher.Constraint("DistanceY", -1, 1, 1, 3, 38.0))
sketch15.addConstraint(Sketcher.Constraint("DistanceX", 1, 3, 0, 3, 15.0))
sketch15.addConstraint(Sketcher.Constraint("DistanceX", 0, 3, -1, 1, 12.5))
pocket5 = body.newObject("PartDesign::Pocket", "Pocket004")
pocket5.Profile = sketch15
pocket5.Length = 20
pocket5.Midplane = True

# Sketch on XZ plane
sketch16 = body.newObject("Sketcher::SketchObject", "Sketch015")
sketch16.AttachmentSupport = (doc.getObject("XZ_Plane"), [""])
sketch16.MapMode = "FlatFace"
sketch16.addGeometry(Part.Circle(V(-16.5, 38, 0), V(0, 0, 1), 2), False)
sketch16.addGeometry(Part.Circle(V(-1.5, 28, 0), V(0, 0, 1), 2), False)
sketch16.addGeometry(Part.Circle(V(13.5, 38, 0), V(0, 0, 1), 2), False)
sketch16.addConstraint(Sketcher.Constraint("Equal", 0, 1))
sketch16.addConstraint(Sketcher.Constraint("Equal", 1, 2))
sketch16.addConstraint(Sketcher.Constraint("Horizontal", 0, 3, 2, 3))
sketch16.addConstraint(Sketcher.Constraint("Diameter", 0, 4.0))
sketch16.addConstraint(Sketcher.Constraint("DistanceY", -1, 1, 0, 3, 38.0))
sketch16.addConstraint(Sketcher.Constraint("DistanceY", -1, 1, 1, 3, 28.0))
sketch16.addConstraint(Sketcher.Constraint("DistanceX", 0, 3, 1, 3, 15.0))
sketch16.addConstraint(Sketcher.Constraint("DistanceX", 1, 3, 2, 3, 15.0))
sketch16.addConstraint(Sketcher.Constraint("DistanceX", 0, 3, -1, 1, 16.5))
pocket6 = body.newObject("PartDesign::Pocket", "Pocket005")
pocket6.Profile = sketch16
pocket6.Length = 20
pocket6.Midplane = True

# Sketch on XY plane
sketch17 = body.newObject("Sketcher::SketchObject", "Sketch016")
sketch17.AttachmentSupport = (doc.getObject("XY_Plane"), [""])
sketch17.MapMode = "FlatFace"
sketch17.AttachmentOffset = App.Placement(V(0, 0, 23), App.Rotation())
sketch17.addGeometry(Part.LineSegment(V(-9, 3, 0), V(6, 3, 0)), False)
sketch17.addGeometry(Part.LineSegment(V(6, 3, 0), V(6, 0, 0)), False)
sketch17.addGeometry(Part.LineSegment(V(6, 0, 0), V(-9, 0, 0)), False)
sketch17.addGeometry(Part.LineSegment(V(-9, 0, 0), V(-9, 3, 0)), False)
sketch17.addGeometry(Part.LineSegment(V(24, -20, 0), V(21, -20, 0)), False)
sketch17.addGeometry(Part.LineSegment(V(21, -20, 0), V(21, -5, 0)), False)
sketch17.addGeometry(Part.LineSegment(V(21, -5, 0), V(24, -5, 0)), False)
sketch17.addGeometry(Part.LineSegment(V(24, -5, 0), V(24, -20, 0)), False)
sketch17.addConstraint(Sketcher.Constraint("Coincident", 0, 2, 1, 1))
sketch17.addConstraint(Sketcher.Constraint("Coincident", 1, 2, 2, 1))
sketch17.addConstraint(Sketcher.Constraint("Coincident", 2, 2, 3, 1))
sketch17.addConstraint(Sketcher.Constraint("Coincident", 3, 2, 0, 1))
sketch17.addConstraint(Sketcher.Constraint("Coincident", 4, 2, 5, 1))
sketch17.addConstraint(Sketcher.Constraint("Coincident", 5, 2, 6, 1))
sketch17.addConstraint(Sketcher.Constraint("Coincident", 6, 2, 7, 1))
sketch17.addConstraint(Sketcher.Constraint("Coincident", 7, 2, 4, 1))
sketch17.addConstraint(Sketcher.Constraint("Horizontal", 0))
sketch17.addConstraint(Sketcher.Constraint("Vertical", 1))
sketch17.addConstraint(Sketcher.Constraint("Horizontal", 2))
sketch17.addConstraint(Sketcher.Constraint("Vertical", 3))
sketch17.addConstraint(Sketcher.Constraint("Horizontal", 4))
sketch17.addConstraint(Sketcher.Constraint("Vertical", 5))
sketch17.addConstraint(Sketcher.Constraint("Horizontal", 6))
sketch17.addConstraint(Sketcher.Constraint("Vertical", 7))
sketch17.addConstraint(Sketcher.Constraint("PointOnObject", 1, 2, -1))
sketch17.addConstraint(Sketcher.Constraint("Equal", 6, 1))
sketch17.addConstraint(Sketcher.Constraint("Equal", 2, 5))
sketch17.addConstraint(Sketcher.Constraint("DistanceX", 4, 2, 4, 1, 3.0))
sketch17.addConstraint(Sketcher.Constraint("DistanceX", 0, 1, 0, 2, 15.0))
sketch17.addConstraint(Sketcher.Constraint("DistanceX", -1, 1, 0, 2, 6.0))
sketch17.addConstraint(Sketcher.Constraint("DistanceX", -1, 1, 4, 2, 21.0))
sketch17.addConstraint(Sketcher.Constraint("DistanceY", 4, 2, -1, 1, 20.0))
pocket7 = body.newObject("PartDesign::Pocket", "Pocket006")
pocket7.Profile = sketch17
pocket7.Length = 10
pocket7.Reversed = True
doc.recompute()

fillet = body.newObject("PartDesign::Fillet", "Fillet")
fillet.Base = (pocket7, edges_at(pocket7, [
    (-24, 0, 115.5),
    (0, 0, 138),
    (24, 0, 115.5),
    (0, -35, 93),
    (-24, 3, 61.5),
    (24, -35, 63),
    (24, 3, 61.5),
    (24, -17.5, 93),
]))
fillet.Radius = 2

doc.recompute()
